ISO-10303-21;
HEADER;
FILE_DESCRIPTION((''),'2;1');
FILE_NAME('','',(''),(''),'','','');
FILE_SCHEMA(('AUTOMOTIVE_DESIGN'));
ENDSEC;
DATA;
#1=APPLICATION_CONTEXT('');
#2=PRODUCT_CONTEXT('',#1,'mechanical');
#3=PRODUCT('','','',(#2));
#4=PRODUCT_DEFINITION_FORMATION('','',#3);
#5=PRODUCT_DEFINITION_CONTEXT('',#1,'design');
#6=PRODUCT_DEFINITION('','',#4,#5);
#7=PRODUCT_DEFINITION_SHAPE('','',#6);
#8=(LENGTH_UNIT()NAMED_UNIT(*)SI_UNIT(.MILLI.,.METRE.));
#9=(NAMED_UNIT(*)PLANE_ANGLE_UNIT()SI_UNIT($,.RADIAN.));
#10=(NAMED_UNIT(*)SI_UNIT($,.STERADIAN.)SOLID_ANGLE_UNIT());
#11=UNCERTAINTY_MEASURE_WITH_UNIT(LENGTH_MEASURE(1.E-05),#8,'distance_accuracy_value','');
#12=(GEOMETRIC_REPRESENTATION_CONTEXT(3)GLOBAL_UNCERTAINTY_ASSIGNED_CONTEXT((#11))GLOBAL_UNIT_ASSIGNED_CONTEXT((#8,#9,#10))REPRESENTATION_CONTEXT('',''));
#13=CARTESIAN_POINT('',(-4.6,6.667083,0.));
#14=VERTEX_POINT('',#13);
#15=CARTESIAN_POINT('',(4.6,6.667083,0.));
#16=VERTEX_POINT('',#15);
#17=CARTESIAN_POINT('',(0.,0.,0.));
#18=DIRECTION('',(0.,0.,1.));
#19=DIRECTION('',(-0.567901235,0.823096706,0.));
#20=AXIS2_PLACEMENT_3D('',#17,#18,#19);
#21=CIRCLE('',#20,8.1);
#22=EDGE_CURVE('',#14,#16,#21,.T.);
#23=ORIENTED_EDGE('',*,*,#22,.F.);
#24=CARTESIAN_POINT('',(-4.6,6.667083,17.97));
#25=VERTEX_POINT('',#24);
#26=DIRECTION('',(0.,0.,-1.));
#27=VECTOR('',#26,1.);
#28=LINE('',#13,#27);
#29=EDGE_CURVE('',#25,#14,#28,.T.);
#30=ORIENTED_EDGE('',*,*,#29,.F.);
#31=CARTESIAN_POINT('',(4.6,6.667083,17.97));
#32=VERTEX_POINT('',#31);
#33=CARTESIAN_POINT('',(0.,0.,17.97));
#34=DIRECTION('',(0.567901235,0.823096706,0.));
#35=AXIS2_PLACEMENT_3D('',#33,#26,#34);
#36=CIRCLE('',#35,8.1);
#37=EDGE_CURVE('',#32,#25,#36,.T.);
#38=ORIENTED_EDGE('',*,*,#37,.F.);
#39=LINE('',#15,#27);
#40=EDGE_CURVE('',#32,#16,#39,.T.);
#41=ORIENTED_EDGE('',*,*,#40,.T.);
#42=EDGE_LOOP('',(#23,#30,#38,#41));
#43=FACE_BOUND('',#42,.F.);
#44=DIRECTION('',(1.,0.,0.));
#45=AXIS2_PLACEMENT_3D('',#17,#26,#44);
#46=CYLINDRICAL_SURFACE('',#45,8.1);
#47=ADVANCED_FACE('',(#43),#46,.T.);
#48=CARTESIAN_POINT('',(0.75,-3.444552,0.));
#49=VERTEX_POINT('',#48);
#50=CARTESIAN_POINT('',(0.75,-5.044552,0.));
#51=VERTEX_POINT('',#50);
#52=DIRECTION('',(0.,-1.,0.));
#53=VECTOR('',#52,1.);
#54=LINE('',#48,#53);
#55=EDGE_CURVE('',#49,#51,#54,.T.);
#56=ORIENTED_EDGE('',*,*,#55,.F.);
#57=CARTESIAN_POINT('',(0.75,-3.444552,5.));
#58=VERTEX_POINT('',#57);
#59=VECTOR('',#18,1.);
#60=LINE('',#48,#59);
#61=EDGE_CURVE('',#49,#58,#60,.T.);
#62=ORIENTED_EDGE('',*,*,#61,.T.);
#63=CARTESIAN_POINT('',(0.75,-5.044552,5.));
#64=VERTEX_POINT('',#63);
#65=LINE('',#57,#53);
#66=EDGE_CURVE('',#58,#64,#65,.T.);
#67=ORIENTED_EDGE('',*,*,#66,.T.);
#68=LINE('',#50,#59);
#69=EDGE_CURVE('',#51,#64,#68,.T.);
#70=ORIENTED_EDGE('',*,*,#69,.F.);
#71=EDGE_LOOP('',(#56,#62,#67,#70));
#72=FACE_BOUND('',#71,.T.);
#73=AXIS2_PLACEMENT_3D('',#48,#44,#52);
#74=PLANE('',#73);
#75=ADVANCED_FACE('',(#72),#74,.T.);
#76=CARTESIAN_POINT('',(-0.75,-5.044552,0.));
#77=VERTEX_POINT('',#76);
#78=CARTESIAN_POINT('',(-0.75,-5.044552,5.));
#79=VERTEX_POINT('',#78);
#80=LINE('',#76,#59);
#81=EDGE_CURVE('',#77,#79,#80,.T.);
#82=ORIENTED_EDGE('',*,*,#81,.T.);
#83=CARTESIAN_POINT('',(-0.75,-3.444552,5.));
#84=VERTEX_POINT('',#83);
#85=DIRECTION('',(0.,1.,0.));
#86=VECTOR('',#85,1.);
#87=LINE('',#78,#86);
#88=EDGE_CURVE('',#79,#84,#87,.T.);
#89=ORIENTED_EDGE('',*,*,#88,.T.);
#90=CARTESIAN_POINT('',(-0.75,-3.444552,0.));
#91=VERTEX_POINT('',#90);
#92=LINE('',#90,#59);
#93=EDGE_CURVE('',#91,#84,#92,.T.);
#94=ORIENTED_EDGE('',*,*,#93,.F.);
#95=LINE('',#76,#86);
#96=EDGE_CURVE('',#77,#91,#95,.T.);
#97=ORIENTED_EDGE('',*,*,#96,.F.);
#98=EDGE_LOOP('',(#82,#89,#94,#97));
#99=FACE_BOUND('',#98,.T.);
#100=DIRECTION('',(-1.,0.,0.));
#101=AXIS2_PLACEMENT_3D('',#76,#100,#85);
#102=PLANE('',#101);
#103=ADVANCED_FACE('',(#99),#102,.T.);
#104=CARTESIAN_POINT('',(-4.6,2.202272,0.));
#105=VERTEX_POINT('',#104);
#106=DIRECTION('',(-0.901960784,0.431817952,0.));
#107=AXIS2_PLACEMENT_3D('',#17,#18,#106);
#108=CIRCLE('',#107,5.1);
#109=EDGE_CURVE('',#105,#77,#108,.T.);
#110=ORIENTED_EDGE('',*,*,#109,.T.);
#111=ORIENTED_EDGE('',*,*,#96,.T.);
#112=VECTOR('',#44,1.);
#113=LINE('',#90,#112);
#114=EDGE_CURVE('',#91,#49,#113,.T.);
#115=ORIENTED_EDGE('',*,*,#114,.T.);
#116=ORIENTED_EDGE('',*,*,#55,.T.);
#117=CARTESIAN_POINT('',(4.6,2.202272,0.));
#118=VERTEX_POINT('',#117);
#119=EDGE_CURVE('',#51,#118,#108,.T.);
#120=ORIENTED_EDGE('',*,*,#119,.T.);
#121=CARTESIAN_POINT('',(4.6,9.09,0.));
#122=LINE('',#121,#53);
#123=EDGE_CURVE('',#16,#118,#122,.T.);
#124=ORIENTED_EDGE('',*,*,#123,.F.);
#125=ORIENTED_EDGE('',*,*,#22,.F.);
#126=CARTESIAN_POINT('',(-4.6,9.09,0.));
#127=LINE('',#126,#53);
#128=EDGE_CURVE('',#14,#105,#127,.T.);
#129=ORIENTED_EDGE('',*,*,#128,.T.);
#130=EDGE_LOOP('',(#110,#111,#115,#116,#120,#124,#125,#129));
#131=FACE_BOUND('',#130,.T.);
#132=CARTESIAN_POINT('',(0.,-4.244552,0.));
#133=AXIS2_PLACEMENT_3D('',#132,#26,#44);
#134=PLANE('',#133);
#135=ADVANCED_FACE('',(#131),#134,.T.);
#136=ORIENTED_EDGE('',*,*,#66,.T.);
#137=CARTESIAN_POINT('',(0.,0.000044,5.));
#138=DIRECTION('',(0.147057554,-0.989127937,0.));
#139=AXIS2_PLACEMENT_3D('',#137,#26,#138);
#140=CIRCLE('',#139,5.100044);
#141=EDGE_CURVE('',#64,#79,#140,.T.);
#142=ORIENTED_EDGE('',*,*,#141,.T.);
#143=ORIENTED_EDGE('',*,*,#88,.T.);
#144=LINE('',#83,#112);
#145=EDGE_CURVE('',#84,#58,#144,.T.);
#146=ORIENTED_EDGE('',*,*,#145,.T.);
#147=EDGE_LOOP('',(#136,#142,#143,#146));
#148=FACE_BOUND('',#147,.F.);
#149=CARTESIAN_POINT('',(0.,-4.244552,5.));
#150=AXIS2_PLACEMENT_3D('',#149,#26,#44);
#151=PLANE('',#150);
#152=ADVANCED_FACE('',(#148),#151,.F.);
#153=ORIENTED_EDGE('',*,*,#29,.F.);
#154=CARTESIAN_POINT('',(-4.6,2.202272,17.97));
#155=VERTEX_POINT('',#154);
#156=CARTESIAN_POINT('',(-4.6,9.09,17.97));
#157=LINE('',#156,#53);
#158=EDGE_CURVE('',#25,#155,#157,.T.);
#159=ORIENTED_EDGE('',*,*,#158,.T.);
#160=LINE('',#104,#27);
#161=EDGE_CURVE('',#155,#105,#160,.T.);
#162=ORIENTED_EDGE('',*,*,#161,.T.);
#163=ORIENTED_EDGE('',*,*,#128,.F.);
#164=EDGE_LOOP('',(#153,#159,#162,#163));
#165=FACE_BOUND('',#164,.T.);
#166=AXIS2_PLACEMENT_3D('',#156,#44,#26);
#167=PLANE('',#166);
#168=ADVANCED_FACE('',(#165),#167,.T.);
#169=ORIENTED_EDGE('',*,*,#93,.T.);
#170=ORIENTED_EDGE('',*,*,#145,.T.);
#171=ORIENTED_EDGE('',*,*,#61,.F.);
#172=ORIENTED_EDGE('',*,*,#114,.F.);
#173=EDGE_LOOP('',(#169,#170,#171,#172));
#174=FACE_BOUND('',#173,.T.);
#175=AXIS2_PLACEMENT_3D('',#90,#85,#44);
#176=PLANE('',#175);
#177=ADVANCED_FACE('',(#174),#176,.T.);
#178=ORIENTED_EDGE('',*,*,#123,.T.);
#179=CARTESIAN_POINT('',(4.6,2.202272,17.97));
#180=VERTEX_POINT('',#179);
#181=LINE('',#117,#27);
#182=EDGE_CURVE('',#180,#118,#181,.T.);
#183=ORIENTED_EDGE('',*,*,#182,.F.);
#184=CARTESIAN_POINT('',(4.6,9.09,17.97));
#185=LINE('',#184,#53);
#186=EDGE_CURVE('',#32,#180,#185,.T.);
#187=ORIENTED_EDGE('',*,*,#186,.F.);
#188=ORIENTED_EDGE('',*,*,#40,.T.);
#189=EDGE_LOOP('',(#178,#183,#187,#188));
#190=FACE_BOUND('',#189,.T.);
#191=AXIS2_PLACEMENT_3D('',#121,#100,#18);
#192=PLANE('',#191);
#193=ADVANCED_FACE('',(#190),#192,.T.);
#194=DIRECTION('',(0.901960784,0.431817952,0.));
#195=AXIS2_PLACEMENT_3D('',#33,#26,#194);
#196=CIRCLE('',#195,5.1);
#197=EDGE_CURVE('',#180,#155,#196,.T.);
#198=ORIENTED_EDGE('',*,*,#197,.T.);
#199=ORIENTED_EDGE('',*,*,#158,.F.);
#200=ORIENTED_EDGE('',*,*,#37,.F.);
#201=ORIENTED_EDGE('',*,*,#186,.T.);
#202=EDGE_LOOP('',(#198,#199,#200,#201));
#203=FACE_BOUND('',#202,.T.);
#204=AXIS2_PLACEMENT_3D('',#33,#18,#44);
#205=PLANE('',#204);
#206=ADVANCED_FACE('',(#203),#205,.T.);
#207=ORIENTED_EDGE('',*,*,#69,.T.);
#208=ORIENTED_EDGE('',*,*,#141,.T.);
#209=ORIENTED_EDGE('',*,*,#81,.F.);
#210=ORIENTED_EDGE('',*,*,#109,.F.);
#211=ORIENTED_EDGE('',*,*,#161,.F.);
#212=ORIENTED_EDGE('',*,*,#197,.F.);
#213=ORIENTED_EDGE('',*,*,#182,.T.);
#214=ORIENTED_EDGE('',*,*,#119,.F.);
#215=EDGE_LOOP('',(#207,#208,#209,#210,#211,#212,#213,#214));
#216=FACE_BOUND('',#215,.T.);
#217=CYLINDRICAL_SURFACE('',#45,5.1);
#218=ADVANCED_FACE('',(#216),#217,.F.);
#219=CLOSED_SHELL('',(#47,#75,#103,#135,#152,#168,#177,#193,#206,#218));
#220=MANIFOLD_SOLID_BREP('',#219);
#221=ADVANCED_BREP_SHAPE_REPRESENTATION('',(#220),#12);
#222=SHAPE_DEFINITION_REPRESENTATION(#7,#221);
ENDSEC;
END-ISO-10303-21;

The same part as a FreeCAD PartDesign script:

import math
import FreeCAD as App
import Part
import Sketcher


def add_polygon(sketch, points):
    """Adds a closed chain of lines whose ends are joined by coincident constraints."""
    first, n = sketch.GeometryCount, len(points)
    for a, b in zip(points, points[1:] + points[:1]):
        sketch.addGeometry(Part.LineSegment(App.Vector(*a, 0), App.Vector(*b, 0)), False)
    for i in range(n):
        sketch.addConstraint(Sketcher.Constraint("Coincident", first + i, 2, first + (i + 1) % n, 1))

doc = App.newDocument("Part")
params = doc.addObject("Spreadsheet::Sheet", "Params")
for row, (alias, value) in enumerate([
    ("sketch1_diameter", "16.2 mm"),
    ("sketch1_diameter2", "10.2 mm"),
    ("pad1_length", "17.97 mm"),
    ("sketch2_width", "9.2 mm"),
    ("sketch2_height", "17.97 mm"),
    ("pocket1_length", "7.6 mm"),
    ("pocket1_length2", "0.4 mm"),
    ("sketch3_width", "1.5 mm"),
    ("sketch3_height", "1.6 mm"),
    ("pad2_length", "5 mm"),
], start=1):
    params.set(f"A{row}", alias)
    params.set(f"B{row}", "=" + value)
    params.setAlias(f"B{row}", alias)

body = doc.addObject("PartDesign::Body", "Body")

sketch1 = body.newObject("Sketcher::SketchObject", "Sketch")
sketch1.AttachmentSupport = (doc.getObject("XY_Plane"), [""])
sketch1.MapMode = "FlatFace"
sketch1.addGeometry(Part.Circle(App.Vector(0, 0, 0), App.Vector(0, 0, 1), 8), False)
sketch1.addGeometry(Part.Circle(App.Vector(0, 0, 0), App.Vector(0, 0, 1), 5), False)
sketch1.addConstraint(Sketcher.Constraint("Coincident", 0, 3, -1, 1))
sketch1.addConstraint(Sketcher.Constraint("Coincident", 1, 3, -1, 1))
sketch1.addConstraint(Sketcher.Constraint("Diameter", 0, 16.2))
sketch1.addConstraint(Sketcher.Constraint("Diameter", 1, 10.2))
sketch1.setExpression("Constraints[2]", "Params.sketch1_diameter")
sketch1.setExpression("Constraints[3]", "Params.sketch1_diameter2")
pad1 = body.newObject("PartDesign::Pad", "Pad")
pad1.Profile = sketch1
pad1.setExpression("Length", "Params.pad1_length")

sketch2 = body.newObject("Sketcher::SketchObject", "Sketch001")
sketch2.AttachmentSupport = (doc.getObject("XZ_Plane"), [""])
sketch2.MapMode = "FlatFace"
sketch2.AttachmentOffset = App.Placement(App.Vector(0, 0, -9.09), App.Rotation())
add_polygon(sketch2, [(5, 0), (5, 18), (-5, 18), (-5, 0)])
sketch2.addConstraint(Sketcher.Constraint("Vertical", 0))
sketch2.addConstraint(Sketcher.Constraint("Horizontal", 1))
sketch2.addConstraint(Sketcher.Constraint("Vertical", 2))
sketch2.addConstraint(Sketcher.Constraint("Horizontal", 3))
sketch2.addConstraint(Sketcher.Constraint("Symmetric", 2, 2, 3, 2, -1, 1))
sketch2.addConstraint(Sketcher.Constraint("DistanceX", 1, 2, 1, 1, 9.2))
sketch2.addConstraint(Sketcher.Constraint("DistanceY", 0, 1, 0, 2, 17.97))
sketch2.setExpression("Constraints[9]", "Params.sketch2_width")
sketch2.setExpression("Constraints[10]", "Params.sketch2_height")
pocket1 = body.newObject("PartDesign::Pocket", "Pocket")
pocket1.Profile = sketch2
pocket1.Type = "TwoLengths"
pocket1.setExpression("Length", "Params.pocket1_length")
pocket1.setExpression("Length2", "Params.pocket1_length2")
pocket1.Reversed = True

sketch3 = body.newObject("Sketcher::SketchObject", "Sketch002")
sketch3.AttachmentSupport = (doc.getObject("XY_Plane"), [""])
sketch3.MapMode = "FlatFace"
sketch3.addGeometry(Part.LineSegment(App.Vector(-0.8, -5, 0), App.Vector(-0.8, -3.4, 0)), False)
sketch3.addGeometry(Part.LineSegment(App.Vector(-0.8, -3.4, 0), App.Vector(0.8, -3.4, 0)), False)
sketch3.addGeometry(Part.LineSegment(App.Vector(0.8, -3.4, 0), App.Vector(0.8, -5, 0)), False)
sketch3.addGeometry(Part.ArcOfCircle(Part.Circle(App.Vector(0, 0, 0), App.Vector(0, 0, 1), 5.1), math.radians(-98.46), math.radians(-81.54)), False)
sketch3.addConstraint(Sketcher.Constraint("Coincident", 0, 2, 1, 1))
sketch3.addConstraint(Sketcher.Constraint("Coincident", 1, 2, 2, 1))
sketch3.addConstraint(Sketcher.Constraint("Coincident", 2, 2, 3, 2))
sketch3.addConstraint(Sketcher.Constraint("Coincident", 3, 1, 0, 1))
sketch3.addConstraint(Sketcher.Constraint("Vertical", 0))
sketch3.addConstraint(Sketcher.Constraint("Horizontal", 1))
sketch3.addConstraint(Sketcher.Constraint("Vertical", 2))
sketch3.addConstraint(Sketcher.Constraint("Symmetric", 2, 2, 3, 1, -2))
sketch3.addConstraint(Sketcher.Constraint("DistanceX", 1, 1, 1, 2, 1.5))
sketch3.addConstraint(Sketcher.Constraint("DistanceY", 0, 1, 0, 2, 1.6))
sketch3.addConstraint(Sketcher.Constraint("Radius", 3, 5.100044))
sketch3.addConstraint(Sketcher.Constraint("DistanceY", 0, 2, -1, 1, 3.444552))
sketch3.setExpression("Constraints[8]", "Params.sketch3_width")
sketch3.setExpression("Constraints[9]", "Params.sketch3_height")
pad2 = body.newObject("PartDesign::Pad", "Pad001")
pad2.Profile = sketch3
pad2.setExpression("Length", "Params.pad2_length")

doc.recompute()
